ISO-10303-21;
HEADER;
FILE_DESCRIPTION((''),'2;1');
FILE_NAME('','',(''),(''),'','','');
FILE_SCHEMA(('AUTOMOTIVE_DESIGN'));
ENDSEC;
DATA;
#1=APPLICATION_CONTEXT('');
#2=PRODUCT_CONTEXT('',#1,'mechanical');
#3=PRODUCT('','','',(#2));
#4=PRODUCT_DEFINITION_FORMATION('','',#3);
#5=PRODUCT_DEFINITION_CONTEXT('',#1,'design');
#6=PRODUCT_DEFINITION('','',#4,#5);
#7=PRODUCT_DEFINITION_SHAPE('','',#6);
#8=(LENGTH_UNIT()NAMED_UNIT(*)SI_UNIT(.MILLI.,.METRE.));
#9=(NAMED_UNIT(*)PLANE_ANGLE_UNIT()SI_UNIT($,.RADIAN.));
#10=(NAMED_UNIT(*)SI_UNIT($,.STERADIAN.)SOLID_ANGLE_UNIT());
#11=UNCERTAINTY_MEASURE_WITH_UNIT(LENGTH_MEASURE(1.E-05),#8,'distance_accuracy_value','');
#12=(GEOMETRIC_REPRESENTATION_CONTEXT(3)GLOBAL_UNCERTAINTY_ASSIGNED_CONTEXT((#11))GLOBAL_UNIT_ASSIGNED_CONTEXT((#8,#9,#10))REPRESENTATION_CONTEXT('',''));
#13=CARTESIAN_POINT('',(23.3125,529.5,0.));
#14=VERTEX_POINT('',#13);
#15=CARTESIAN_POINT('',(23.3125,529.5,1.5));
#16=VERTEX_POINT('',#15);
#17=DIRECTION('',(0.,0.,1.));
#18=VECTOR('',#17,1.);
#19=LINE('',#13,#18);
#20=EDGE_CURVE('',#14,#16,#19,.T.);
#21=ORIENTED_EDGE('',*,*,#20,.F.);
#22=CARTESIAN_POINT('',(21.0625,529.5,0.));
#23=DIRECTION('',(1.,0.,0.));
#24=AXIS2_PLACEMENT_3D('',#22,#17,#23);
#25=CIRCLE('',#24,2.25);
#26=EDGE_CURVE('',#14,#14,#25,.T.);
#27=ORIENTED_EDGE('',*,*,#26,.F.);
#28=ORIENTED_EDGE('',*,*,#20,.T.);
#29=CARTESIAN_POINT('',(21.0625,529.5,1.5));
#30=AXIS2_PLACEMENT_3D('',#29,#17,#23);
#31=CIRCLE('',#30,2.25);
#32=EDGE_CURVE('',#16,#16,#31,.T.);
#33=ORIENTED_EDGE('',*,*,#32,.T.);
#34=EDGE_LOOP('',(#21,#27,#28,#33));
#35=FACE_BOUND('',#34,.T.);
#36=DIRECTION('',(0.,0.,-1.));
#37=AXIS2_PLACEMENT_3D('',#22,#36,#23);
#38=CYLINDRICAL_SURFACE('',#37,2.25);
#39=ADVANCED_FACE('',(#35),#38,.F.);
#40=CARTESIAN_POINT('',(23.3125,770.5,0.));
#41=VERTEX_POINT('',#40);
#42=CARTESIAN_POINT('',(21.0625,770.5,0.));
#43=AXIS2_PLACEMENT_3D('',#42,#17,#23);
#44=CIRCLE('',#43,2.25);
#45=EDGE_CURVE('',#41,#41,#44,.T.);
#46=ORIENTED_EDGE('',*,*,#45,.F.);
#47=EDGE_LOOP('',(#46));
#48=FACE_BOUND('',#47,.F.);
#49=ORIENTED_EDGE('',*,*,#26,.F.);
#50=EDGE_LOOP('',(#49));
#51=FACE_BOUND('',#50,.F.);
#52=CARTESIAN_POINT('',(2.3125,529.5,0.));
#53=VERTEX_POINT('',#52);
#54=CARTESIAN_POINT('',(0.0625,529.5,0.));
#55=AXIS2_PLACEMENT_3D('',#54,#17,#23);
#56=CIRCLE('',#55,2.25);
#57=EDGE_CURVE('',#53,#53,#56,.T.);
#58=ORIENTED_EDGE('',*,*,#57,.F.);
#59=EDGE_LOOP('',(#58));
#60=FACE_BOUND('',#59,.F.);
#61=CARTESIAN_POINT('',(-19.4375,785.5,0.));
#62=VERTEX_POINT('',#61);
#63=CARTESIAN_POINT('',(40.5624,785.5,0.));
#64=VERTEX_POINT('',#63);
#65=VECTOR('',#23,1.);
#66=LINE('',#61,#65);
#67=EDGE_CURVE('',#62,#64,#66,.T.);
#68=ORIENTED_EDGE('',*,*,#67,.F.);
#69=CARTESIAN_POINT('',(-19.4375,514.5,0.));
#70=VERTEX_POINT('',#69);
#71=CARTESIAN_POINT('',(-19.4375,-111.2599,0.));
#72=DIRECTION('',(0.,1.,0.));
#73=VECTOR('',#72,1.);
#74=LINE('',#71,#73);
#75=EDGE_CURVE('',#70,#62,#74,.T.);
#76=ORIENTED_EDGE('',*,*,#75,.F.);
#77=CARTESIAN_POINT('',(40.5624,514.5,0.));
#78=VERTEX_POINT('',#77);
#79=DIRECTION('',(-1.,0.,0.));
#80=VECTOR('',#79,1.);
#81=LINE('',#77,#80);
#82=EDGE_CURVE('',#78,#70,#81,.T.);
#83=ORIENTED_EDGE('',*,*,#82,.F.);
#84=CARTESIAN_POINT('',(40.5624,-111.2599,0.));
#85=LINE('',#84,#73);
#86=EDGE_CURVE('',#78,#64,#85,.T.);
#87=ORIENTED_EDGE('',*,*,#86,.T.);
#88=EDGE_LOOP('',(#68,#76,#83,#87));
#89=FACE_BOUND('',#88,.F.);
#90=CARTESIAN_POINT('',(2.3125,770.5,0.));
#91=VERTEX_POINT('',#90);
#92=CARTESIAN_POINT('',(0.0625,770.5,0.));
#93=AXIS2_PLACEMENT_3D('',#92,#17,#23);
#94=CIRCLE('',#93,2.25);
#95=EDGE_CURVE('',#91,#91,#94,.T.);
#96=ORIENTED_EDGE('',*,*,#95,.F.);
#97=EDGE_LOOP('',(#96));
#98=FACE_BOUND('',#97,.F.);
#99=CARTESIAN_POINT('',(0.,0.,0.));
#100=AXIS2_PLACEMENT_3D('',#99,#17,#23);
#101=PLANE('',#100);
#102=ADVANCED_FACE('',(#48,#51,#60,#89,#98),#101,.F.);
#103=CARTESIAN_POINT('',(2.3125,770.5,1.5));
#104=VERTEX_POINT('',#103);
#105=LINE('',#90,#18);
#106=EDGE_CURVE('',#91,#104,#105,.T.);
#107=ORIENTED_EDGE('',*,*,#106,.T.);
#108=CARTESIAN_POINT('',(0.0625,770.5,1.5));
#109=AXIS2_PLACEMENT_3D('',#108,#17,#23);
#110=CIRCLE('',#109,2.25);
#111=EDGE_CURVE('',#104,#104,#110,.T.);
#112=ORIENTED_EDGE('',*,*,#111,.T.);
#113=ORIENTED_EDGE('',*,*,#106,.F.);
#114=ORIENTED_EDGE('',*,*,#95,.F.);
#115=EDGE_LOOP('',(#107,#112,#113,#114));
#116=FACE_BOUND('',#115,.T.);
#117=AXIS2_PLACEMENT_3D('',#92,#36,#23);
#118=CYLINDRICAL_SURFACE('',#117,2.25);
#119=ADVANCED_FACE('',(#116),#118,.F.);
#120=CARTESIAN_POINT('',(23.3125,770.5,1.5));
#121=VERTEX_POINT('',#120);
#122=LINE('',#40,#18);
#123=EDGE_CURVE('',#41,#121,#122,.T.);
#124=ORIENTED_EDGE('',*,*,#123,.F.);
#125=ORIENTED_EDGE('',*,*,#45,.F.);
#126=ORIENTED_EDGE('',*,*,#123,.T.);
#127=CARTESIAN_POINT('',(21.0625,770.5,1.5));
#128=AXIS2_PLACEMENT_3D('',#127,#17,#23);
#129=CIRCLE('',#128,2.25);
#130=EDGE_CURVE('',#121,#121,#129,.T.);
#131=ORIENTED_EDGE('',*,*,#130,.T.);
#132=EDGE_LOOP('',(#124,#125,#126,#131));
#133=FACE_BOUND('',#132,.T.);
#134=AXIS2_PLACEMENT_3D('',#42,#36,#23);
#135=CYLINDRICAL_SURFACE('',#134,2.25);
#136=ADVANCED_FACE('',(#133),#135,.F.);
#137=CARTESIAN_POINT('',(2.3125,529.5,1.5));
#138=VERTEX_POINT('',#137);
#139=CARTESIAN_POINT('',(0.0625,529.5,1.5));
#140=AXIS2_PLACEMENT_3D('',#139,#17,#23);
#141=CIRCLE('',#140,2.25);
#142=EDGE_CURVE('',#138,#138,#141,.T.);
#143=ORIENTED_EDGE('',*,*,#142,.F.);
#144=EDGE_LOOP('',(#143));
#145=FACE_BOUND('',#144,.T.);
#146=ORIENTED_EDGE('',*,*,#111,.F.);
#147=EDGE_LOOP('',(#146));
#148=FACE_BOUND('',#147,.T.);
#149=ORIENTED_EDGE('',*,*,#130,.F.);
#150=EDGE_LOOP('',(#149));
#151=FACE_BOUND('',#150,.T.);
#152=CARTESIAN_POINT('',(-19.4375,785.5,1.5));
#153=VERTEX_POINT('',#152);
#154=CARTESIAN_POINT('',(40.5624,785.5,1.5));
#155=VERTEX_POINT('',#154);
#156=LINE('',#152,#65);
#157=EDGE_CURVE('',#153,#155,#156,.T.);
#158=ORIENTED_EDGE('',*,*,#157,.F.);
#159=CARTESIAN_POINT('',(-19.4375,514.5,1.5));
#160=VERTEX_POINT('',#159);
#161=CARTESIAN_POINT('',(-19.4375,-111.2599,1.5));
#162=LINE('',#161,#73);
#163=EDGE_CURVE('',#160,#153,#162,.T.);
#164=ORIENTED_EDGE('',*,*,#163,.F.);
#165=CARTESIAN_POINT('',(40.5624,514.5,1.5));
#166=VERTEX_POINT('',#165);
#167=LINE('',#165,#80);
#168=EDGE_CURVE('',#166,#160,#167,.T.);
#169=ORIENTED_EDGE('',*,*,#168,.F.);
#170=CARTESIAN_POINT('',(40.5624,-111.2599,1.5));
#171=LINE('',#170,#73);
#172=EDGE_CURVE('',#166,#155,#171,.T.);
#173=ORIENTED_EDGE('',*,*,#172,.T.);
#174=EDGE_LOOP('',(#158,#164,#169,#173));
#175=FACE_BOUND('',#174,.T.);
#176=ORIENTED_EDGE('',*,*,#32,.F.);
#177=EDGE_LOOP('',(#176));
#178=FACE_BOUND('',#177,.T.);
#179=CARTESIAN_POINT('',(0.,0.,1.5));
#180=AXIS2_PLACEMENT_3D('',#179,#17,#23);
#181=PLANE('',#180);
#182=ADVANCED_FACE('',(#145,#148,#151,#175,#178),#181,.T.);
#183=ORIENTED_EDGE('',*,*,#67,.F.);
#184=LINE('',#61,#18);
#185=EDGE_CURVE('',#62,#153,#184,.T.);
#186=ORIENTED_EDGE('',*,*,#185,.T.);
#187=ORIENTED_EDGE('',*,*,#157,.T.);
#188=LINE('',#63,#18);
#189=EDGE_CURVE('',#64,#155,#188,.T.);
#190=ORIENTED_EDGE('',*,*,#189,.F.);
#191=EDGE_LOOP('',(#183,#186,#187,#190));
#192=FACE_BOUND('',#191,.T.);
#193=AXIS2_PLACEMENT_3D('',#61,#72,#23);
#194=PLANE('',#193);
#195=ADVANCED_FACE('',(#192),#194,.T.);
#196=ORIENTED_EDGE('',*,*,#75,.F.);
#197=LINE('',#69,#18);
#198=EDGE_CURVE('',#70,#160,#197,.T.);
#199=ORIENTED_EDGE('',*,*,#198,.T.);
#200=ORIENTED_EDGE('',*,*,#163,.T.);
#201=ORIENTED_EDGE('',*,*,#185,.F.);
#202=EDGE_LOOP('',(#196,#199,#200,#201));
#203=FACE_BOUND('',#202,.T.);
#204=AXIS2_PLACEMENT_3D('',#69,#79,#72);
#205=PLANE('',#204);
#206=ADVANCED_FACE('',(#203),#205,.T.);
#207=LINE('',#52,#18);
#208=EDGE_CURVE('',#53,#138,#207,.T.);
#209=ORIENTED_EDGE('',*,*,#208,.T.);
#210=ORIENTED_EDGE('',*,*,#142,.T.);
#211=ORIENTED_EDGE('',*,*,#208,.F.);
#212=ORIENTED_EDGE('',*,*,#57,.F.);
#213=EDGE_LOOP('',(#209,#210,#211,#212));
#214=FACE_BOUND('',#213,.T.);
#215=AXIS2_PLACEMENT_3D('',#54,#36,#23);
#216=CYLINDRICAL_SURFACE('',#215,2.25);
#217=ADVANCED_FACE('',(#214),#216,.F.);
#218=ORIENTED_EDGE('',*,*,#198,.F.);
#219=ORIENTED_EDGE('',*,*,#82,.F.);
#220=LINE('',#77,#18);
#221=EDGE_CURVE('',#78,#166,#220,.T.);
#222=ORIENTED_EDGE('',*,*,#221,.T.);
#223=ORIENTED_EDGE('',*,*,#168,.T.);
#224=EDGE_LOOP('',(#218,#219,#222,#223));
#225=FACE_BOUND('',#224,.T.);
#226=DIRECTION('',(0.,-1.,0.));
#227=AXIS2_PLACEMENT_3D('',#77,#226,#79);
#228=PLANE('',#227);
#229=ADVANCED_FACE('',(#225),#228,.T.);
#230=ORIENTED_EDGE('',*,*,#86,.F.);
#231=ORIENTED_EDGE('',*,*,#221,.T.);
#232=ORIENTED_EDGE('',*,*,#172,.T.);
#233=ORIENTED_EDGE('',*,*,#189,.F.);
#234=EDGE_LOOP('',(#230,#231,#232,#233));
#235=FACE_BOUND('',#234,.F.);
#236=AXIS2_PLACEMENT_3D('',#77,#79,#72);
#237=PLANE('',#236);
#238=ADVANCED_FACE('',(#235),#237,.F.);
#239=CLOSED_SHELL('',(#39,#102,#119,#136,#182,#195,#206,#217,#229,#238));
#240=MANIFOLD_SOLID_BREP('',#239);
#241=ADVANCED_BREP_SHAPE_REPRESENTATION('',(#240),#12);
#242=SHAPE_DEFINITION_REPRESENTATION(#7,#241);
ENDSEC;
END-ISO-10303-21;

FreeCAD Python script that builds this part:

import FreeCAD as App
import Part
import Sketcher

V = App.Vector
Q = App.Units.Quantity


def add_polygon(sketch, points):
    """Adds a closed chain of lines whose ends are joined by coincident constraints."""
    first, n = sketch.GeometryCount, len(points)
    for a, b in zip(points, points[1:] + points[:1]):
        sketch.addGeometry(Part.LineSegment(App.Vector(*a, 0), App.Vector(*b, 0)), False)
    for i in range(n):
        sketch.addConstraint(Sketcher.Constraint("Coincident", first + i, 2, first + (i + 1) % n, 1))

doc = App.newDocument("Part")
body = doc.addObject("PartDesign::Body", "Body")

sketch1 = doc.addObject("Sketcher::SketchObject", "Sketch")
body.addObject(sketch1)
sketch1.AttachmentSupport = (doc.XY_Plane, [""])
sketch1.MapMode = "FlatFace"
add_polygon(sketch1, [(-19.4375, 514.5), (40.5624, 514.5), (40.5624, 785.5), (-19.4375, 785.5)])
sketch1.addGeometry(Part.Circle(V(0.0625, 529.5, 0), V(0, 0, 1), 2.25), False)
sketch1.addGeometry(Part.Circle(V(21.0625, 529.5, 0), V(0, 0, 1), 2.25), False)
sketch1.addGeometry(Part.Circle(V(0.0625, 770.5, 0), V(0, 0, 1), 2.25), False)
sketch1.addGeometry(Part.Circle(V(21.0625, 770.5, 0), V(0, 0, 1), 2.25), False)
sketch1.addConstraint(Sketcher.Constraint("Horizontal", 0))
sketch1.addConstraint(Sketcher.Constraint("Vertical", 1))
sketch1.addConstraint(Sketcher.Constraint("Horizontal", 2))
sketch1.addConstraint(Sketcher.Constraint("Vertical", 3))
sketch1.addConstraint(Sketcher.Constraint("Equal", 4, 5))
sketch1.addConstraint(Sketcher.Constraint("Equal", 5, 6))
sketch1.addConstraint(Sketcher.Constraint("Equal", 6, 7))
sketch1.addConstraint(Sketcher.Constraint("Horizontal", 4, 3, 5, 3))
sketch1.addConstraint(Sketcher.Constraint("Horizontal", 6, 3, 7, 3))
sketch1.addConstraint(Sketcher.Constraint("Vertical", 4, 3, 6, 3))
sketch1.addConstraint(Sketcher.Constraint("Vertical", 5, 3, 7, 3))
sketch1.addConstraint(Sketcher.Constraint("DistanceY", 0, 2, 5, 3, Q("15 mm")))
sketch1.addConstraint(Sketcher.Constraint("DistanceY", 7, 3, 1, 2, Q("15 mm")))
sketch1.addConstraint(Sketcher.Constraint("Diameter", 4, Q("4.5 mm")))
sketch1.addConstraint(Sketcher.Constraint("DistanceX", 0, 1, 0, 2, Q("60 mm")))
sketch1.addConstraint(Sketcher.Constraint("DistanceY", 1, 1, 1, 2, Q("271 mm")))
sketch1.addConstraint(Sketcher.Constraint("DistanceX", 4, 3, 5, 3, Q("21 mm")))
sketch1.addConstraint(Sketcher.Constraint("DistanceY", -1, 1, 4, 3, Q("529.5 mm")))
sketch1.addConstraint(Sketcher.Constraint("DistanceX", 5, 3, 0, 2, Q("19.5 mm")))
sketch1.addConstraint(Sketcher.Constraint("DistanceX", -1, 1, 4, 3, Q("0.0625 mm")))
pad1 = doc.addObject("PartDesign::Pad", "Pad")
body.addObject(pad1)
pad1.Profile = sketch1
pad1.Length = 1.5

doc.recompute()
